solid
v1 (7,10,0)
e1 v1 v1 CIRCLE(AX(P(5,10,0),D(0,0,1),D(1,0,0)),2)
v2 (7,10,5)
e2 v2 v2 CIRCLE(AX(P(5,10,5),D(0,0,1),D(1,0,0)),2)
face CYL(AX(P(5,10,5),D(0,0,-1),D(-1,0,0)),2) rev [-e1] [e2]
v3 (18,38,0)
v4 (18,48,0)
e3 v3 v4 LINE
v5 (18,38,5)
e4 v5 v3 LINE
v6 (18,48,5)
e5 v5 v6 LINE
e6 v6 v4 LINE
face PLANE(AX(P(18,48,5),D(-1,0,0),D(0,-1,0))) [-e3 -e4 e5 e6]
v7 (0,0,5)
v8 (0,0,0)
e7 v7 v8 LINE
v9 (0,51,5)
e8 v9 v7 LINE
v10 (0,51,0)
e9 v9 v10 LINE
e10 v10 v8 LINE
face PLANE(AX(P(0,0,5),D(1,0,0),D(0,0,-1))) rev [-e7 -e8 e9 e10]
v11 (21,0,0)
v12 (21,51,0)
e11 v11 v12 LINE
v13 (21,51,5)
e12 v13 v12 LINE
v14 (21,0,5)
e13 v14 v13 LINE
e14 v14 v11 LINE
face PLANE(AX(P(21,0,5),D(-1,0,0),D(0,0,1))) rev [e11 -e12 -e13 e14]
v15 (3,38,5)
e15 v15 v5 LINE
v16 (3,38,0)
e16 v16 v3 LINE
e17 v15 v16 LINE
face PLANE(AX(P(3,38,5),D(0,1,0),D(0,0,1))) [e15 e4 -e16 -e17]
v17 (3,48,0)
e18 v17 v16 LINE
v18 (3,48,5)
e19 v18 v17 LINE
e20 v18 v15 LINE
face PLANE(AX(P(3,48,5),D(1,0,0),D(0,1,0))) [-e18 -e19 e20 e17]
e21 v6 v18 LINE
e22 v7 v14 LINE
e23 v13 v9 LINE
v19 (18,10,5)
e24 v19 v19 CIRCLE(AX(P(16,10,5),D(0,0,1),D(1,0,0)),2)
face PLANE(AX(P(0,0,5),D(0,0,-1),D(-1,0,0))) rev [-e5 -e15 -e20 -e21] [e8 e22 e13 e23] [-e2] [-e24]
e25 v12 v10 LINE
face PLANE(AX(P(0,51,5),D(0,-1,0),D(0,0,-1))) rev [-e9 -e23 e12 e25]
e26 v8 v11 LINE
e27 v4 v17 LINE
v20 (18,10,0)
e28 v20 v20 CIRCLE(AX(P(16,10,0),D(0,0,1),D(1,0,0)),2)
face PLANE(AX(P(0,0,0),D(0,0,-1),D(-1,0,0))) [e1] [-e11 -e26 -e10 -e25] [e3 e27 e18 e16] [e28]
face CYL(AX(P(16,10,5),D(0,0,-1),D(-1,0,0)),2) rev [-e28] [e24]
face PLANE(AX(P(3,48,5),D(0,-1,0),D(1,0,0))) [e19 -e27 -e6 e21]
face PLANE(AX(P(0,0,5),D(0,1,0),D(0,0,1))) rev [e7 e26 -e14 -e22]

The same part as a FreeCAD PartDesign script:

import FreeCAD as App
import Part
import Sketcher

doc = App.newDocument("Part")
body = doc.addObject("PartDesign::Body", "Body")

# Sketch on XY plane
sketch1 = body.newObject("Sketcher::SketchObject", "Sketch")
sketch1.AttachmentSupport = (doc.getObject("XY_Plane"), [""])
sketch1.MapMode = "FlatFace"
sketch1.addGeometry(Part.LineSegment(App.Vector(0, 51, 0), App.Vector(0, 0, 0)), False)
sketch1.addGeometry(Part.LineSegment(App.Vector(0, 0, 0), App.Vector(21, 0, 0)), False)
sketch1.addGeometry(Part.LineSegment(App.Vector(21, 0, 0), App.Vector(21, 51, 0)), False)
sketch1.addGeometry(Part.LineSegment(App.Vector(21, 51, 0), App.Vector(0, 51, 0)), False)
sketch1.addGeometry(Part.Circle(App.Vector(5, 10, 0), App.Vector(0, 0, 1), 2), False)
sketch1.addGeometry(Part.Circle(App.Vector(16, 10, 0), App.Vector(0, 0, 1), 2), False)
sketch1.addGeometry(Part.LineSegment(App.Vector(18, 38, 0), App.Vector(3, 38, 0)), False)
sketch1.addGeometry(Part.LineSegment(App.Vector(3, 38, 0), App.Vector(3, 48, 0)), False)
sketch1.addGeometry(Part.LineSegment(App.Vector(3, 48, 0), App.Vector(18, 48, 0)), False)
sketch1.addGeometry(Part.LineSegment(App.Vector(18, 48, 0), App.Vector(18, 38, 0)), False)
sketch1.addConstraint(Sketcher.Constraint("Coincident", 0, 2, 1, 1))
sketch1.addConstraint(Sketcher.Constraint("Coincident", 1, 2, 2, 1))
sketch1.addConstraint(Sketcher.Constraint("Coincident", 2, 2, 3, 1))
sketch1.addConstraint(Sketcher.Constraint("Coincident", 3, 2, 0, 1))
sketch1.addConstraint(Sketcher.Constraint("Coincident", 6, 2, 7, 1))
sketch1.addConstraint(Sketcher.Constraint("Coincident", 7, 2, 8, 1))
sketch1.addConstraint(Sketcher.Constraint("Coincident", 8, 2, 9, 1))
sketch1.addConstraint(Sketcher.Constraint("Coincident", 9, 2, 6, 1))
sketch1.addConstraint(Sketcher.Constraint("Vertical", 0))
sketch1.addConstraint(Sketcher.Constraint("Horizontal", 1))
sketch1.addConstraint(Sketcher.Constraint("Vertical", 2))
sketch1.addConstraint(Sketcher.Constraint("Horizontal", 3))
sketch1.addConstraint(Sketcher.Constraint("Horizontal", 6))
sketch1.addConstraint(Sketcher.Constraint("Vertical", 7))
sketch1.addConstraint(Sketcher.Constraint("Horizontal", 8))
sketch1.addConstraint(Sketcher.Constraint("Vertical", 9))
sketch1.addConstraint(Sketcher.Constraint("Coincident", 0, 2, -1, 1))
sketch1.addConstraint(Sketcher.Constraint("Equal", 4, 5))
sketch1.addConstraint(Sketcher.Constraint("Horizontal", 4, 3, 5, 3))
sketch1.addConstraint(Sketcher.Constraint("Diameter", 4, 4.0))
sketch1.addConstraint(Sketcher.Constraint("DistanceX", 1, 1, 1, 2, 21.0))
sketch1.addConstraint(Sketcher.Constraint("DistanceX", 6, 2, 6, 1, 15.0))
sketch1.addConstraint(Sketcher.Constraint("DistanceY", 0, 2, 0, 1, 51.0))
sketch1.addConstraint(Sketcher.Constraint("DistanceY", 7, 1, 7, 2, 10.0))
sketch1.addConstraint(Sketcher.Constraint("DistanceX", -1, 1, 4, 3, 5.0))
sketch1.addConstraint(Sketcher.Constraint("DistanceY", -1, 1, 4, 3, 10.0))
sketch1.addConstraint(Sketcher.Constraint("DistanceX", -1, 1, 5, 3, 16.0))
sketch1.addConstraint(Sketcher.Constraint("DistanceX", -1, 1, 6, 2, 3.0))
sketch1.addConstraint(Sketcher.Constraint("DistanceY", -1, 1, 6, 2, 38.0))
pad1 = body.newObject("PartDesign::Pad", "Pad")
pad1.Profile = sketch1
pad1.Length = 5

doc.recompute()
